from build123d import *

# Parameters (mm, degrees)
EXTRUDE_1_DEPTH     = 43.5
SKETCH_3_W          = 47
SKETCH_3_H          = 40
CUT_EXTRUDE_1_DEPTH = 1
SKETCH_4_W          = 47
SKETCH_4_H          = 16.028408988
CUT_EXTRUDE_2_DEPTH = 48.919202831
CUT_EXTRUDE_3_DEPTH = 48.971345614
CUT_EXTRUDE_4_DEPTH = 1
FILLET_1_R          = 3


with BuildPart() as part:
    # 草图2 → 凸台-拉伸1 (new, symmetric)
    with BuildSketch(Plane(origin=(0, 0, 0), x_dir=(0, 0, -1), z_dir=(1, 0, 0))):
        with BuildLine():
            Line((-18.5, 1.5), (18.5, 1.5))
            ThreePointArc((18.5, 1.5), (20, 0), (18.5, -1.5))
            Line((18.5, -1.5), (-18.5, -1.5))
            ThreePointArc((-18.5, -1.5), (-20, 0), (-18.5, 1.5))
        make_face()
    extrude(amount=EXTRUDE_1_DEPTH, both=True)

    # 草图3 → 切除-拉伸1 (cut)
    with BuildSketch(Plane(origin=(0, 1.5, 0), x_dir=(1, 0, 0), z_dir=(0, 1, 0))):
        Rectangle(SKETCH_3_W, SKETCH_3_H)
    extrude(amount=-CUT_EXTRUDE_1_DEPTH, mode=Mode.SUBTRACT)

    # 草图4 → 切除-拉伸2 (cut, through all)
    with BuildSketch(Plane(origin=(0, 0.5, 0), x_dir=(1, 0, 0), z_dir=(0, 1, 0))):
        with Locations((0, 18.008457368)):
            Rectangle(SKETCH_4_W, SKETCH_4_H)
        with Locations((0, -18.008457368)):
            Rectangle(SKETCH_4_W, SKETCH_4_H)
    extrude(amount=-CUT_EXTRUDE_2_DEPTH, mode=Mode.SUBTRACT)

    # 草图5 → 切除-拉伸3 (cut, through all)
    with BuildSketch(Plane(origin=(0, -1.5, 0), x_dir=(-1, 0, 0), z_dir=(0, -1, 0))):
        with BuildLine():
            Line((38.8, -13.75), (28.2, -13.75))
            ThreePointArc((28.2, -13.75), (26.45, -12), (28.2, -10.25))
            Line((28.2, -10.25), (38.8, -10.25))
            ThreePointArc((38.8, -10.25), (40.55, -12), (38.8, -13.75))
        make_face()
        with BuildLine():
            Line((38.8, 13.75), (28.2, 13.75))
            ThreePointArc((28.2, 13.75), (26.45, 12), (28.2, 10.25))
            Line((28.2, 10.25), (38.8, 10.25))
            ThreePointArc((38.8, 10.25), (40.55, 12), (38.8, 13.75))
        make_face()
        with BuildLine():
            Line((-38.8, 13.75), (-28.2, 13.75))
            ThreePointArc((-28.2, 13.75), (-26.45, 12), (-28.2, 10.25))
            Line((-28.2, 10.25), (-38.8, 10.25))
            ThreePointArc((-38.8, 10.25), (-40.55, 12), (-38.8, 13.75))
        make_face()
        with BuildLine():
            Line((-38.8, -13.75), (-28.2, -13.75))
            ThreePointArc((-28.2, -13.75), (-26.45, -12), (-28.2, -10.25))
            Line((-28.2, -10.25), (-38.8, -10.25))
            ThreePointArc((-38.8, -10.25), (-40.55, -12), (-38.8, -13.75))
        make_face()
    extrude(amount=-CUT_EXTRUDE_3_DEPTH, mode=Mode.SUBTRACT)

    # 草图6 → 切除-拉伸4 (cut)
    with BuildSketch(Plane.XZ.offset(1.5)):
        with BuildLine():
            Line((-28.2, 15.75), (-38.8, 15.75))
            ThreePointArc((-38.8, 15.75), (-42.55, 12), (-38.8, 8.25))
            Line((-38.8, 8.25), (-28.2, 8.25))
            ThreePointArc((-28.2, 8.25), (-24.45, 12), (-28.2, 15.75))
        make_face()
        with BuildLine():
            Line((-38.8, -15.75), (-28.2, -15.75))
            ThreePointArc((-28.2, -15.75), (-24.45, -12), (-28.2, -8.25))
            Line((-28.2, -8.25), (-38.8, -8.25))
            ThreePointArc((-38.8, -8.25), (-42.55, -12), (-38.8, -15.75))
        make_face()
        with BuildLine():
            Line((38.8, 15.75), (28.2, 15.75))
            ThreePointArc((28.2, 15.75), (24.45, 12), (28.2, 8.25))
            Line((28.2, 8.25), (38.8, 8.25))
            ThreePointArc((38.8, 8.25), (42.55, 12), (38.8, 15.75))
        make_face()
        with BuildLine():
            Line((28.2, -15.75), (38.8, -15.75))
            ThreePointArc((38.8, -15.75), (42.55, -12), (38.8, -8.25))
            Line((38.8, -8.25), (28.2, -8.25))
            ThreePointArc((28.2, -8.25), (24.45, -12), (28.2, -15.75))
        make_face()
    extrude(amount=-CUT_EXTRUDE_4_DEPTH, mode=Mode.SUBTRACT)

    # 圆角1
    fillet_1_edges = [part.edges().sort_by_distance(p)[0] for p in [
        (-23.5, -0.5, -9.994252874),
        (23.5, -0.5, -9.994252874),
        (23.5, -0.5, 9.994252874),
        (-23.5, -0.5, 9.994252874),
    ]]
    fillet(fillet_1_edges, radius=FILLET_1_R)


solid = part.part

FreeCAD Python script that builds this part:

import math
import FreeCAD as App
import Part
import Sketcher

V = App.Vector
Q = App.Units.Quantity


def edges_at(feature, points):
    """Names of the edges that pass closest to the given points."""
    edges = feature.Shape.Edges
    near = lambda p: min(range(len(edges)), key=lambda i: edges[i].distToShape(Part.Vertex(*p))[0])
    return sorted({f"Edge{near(p) + 1}" for p in points})


def add_polygon(sketch, points):
    """Adds a closed chain of lines whose ends are joined by coincident constraints."""
    first, n = sketch.GeometryCount, len(points)
    for a, b in zip(points, points[1:] + points[:1]):
        sketch.addGeometry(Part.LineSegment(App.Vector(*a, 0), App.Vector(*b, 0)), False)
    for i in range(n):
        sketch.addConstraint(Sketcher.Constraint("Coincident", first + i, 2, first + (i + 1) % n, 1))

doc = App.newDocument("Part")
body = doc.addObject("PartDesign::Body", "Body")

# Sketch on YZ plane
sketch1 = doc.addObject("Sketcher::SketchObject", "Sketch")
body.addObject(sketch1)
sketch1.AttachmentSupport = (doc.YZ_Plane, [""])
sketch1.MapMode = "FlatFace"
sketch1.addGeometry(Part.LineSegment(V(1.5, -18.5, 0), V(1.5, 18.5, 0)), False)
sketch1.addGeometry(Part.ArcOfCircle(Part.Circle(V(0, 18.5, 0), V(0, 0, 1), 1.5), math.radians(0), math.radians(180)), False)
sketch1.addGeometry(Part.LineSegment(V(-1.5, 18.5, 0), V(-1.5, -18.5, 0)), False)
sketch1.addGeometry(Part.ArcOfCircle(Part.Circle(V(0, -18.5, 0), V(0, 0, 1), 1.5), math.radians(180), math.radians(360)), False)
sketch1.addConstraint(Sketcher.Constraint("Tangent", 0, 2, 1, 1))
sketch1.addConstraint(Sketcher.Constraint("Tangent", 1, 2, 2, 1))
sketch1.addConstraint(Sketcher.Constraint("Tangent", 2, 2, 3, 1))
sketch1.addConstraint(Sketcher.Constraint("Tangent", 3, 2, 0, 1))
sketch1.addConstraint(Sketcher.Constraint("Vertical", 0))
sketch1.addConstraint(Sketcher.Constraint("Vertical", 2))
sketch1.addConstraint(Sketcher.Constraint("Symmetric", 1, 3, 3, 3, -1, 1))
sketch1.addConstraint(Sketcher.Constraint("Radius", 1, Q("1.5 mm")))
sketch1.addConstraint(Sketcher.Constraint("DistanceY", 0, 1, 0, 2, Q("37 mm")))
pad1 = doc.addObject("PartDesign::Pad", "Pad")
body.addObject(pad1)
pad1.Profile = sketch1
pad1.Length = 87
pad1.Midplane = True

# Sketch on XZ plane
sketch2 = doc.addObject("Sketcher::SketchObject", "Sketch001")
body.addObject(sketch2)
sketch2.AttachmentSupport = (doc.XZ_Plane, [""])
sketch2.MapMode = "FlatFace"
sketch2.AttachmentOffset = App.Placement(V(0, 0, -1.5), App.Rotation())
add_polygon(sketch2, [(-24, -20), (-24, 20), (24, 20), (24, -20)])  # lines 0-3
sketch2.addConstraint(Sketcher.Constraint("Vertical", 0))
sketch2.addConstraint(Sketcher.Constraint("Horizontal", 1))
sketch2.addConstraint(Sketcher.Constraint("Vertical", 2))
sketch2.addConstraint(Sketcher.Constraint("Horizontal", 3))
sketch2.addConstraint(Sketcher.Constraint("Symmetric", 0, 2, 2, 2, -1, 1))
sketch2.addConstraint(Sketcher.Constraint("DistanceX", 1, 1, 1, 2, Q("47 mm")))
sketch2.addConstraint(Sketcher.Constraint("DistanceY", 0, 1, 0, 2, Q("40 mm")))
pocket1 = doc.addObject("PartDesign::Pocket", "Pocket")
body.addObject(pocket1)
pocket1.Profile = sketch2
pocket1.Length = 1
pocket1.Reversed = True

# Sketch on XZ plane
sketch3 = doc.addObject("Sketcher::SketchObject", "Sketch002")
body.addObject(sketch3)
sketch3.AttachmentSupport = (doc.XZ_Plane, [""])
sketch3.MapMode = "FlatFace"
sketch3.AttachmentOffset = App.Placement(V(0, 0, -0.5), App.Rotation())
add_polygon(sketch3, [(-24, -26), (-24, -10), (24, -10), (24, -26)])  # lines 0-3
add_polygon(sketch3, [(-24, 10), (-24, 26), (24, 26), (24, 10)])  # lines 4-7
sketch3.addConstraint(Sketcher.Constraint("Vertical", 0))
sketch3.addConstraint(Sketcher.Constraint("Horizontal", 1))
sketch3.addConstraint(Sketcher.Constraint("Vertical", 2))
sketch3.addConstraint(Sketcher.Constraint("Horizontal", 3))
sketch3.addConstraint(Sketcher.Constraint("Vertical", 4))
sketch3.addConstraint(Sketcher.Constraint("Horizontal", 5))
sketch3.addConstraint(Sketcher.Constraint("Vertical", 6))
sketch3.addConstraint(Sketcher.Constraint("Horizontal", 7))
sketch3.addConstraint(Sketcher.Constraint("Symmetric", 2, 2, 4, 2, -1, 1))
sketch3.addConstraint(Sketcher.Constraint("Symmetric", 0, 2, 6, 2, -1, 1))
sketch3.addConstraint(Sketcher.Constraint("Vertical", 3, 2, 4, 2))
sketch3.addConstraint(Sketcher.Constraint("DistanceX", 1, 1, 1, 2, Q("47 mm")))
sketch3.addConstraint(Sketcher.Constraint("DistanceY", 0, 1, 0, 2, Q("16.028409 mm")))
sketch3.addConstraint(Sketcher.Constraint("DistanceY", 2, 2, -1, 1, Q("26.022662 mm")))
pocket2 = doc.addObject("PartDesign::Pocket", "Pocket001")
body.addObject(pocket2)
pocket2.Profile = sketch3
pocket2.Type = "ThroughAll"
pocket2.Reversed = True

# Sketch on XZ plane
sketch4 = doc.addObject("Sketcher::SketchObject", "Sketch003")
body.addObject(sketch4)
sketch4.AttachmentSupport = (doc.XZ_Plane, [""])
sketch4.MapMode = "FlatFace"
sketch4.AttachmentOffset = App.Placement(V(0, 0, 1.5), App.Rotation())
sketch4.addGeometry(Part.LineSegment(V(-28.2, 13.8, 0), V(-38.8, 13.8, 0)), False)
sketch4.addGeometry(Part.ArcOfCircle(Part.Circle(V(-38.8, 12, 0), V(0, 0, 1), 1.8), math.radians(90), math.radians(270)), False)
sketch4.addGeometry(Part.LineSegment(V(-38.8, 10.2, 0), V(-28.2, 10.2, 0)), False)
sketch4.addGeometry(Part.ArcOfCircle(Part.Circle(V(-28.2, 12, 0), V(0, 0, 1), 1.8), math.radians(-90), math.radians(90)), False)
sketch4.addGeometry(Part.LineSegment(V(-38.8, -13.8, 0), V(-28.2, -13.8, 0)), False)
sketch4.addGeometry(Part.ArcOfCircle(Part.Circle(V(-28.2, -12, 0), V(0, 0, 1), 1.8), math.radians(-90), math.radians(90)), False)
sketch4.addGeometry(Part.LineSegment(V(-28.2, -10.2, 0), V(-38.8, -10.2, 0)), False)
sketch4.addGeometry(Part.ArcOfCircle(Part.Circle(V(-38.8, -12, 0), V(0, 0, 1), 1.8), math.radians(90), math.radians(270)), False)
sketch4.addGeometry(Part.LineSegment(V(28.2, -13.8, 0), V(38.8, -13.8, 0)), False)
sketch4.addGeometry(Part.ArcOfCircle(Part.Circle(V(38.8, -12, 0), V(0, 0, 1), 1.8), math.radians(-90), math.radians(90)), False)
sketch4.addGeometry(Part.LineSegment(V(38.8, -10.2, 0), V(28.2, -10.2, 0)), False)
sketch4.addGeometry(Part.ArcOfCircle(Part.Circle(V(28.2, -12, 0), V(0, 0, 1), 1.8), math.radians(90), math.radians(270)), False)
sketch4.addGeometry(Part.LineSegment(V(38.8, 13.8, 0), V(28.2, 13.8, 0)), False)
sketch4.addGeometry(Part.ArcOfCircle(Part.Circle(V(28.2, 12, 0), V(0, 0, 1), 1.8), math.radians(90), math.radians(270)), False)
sketch4.addGeometry(Part.LineSegment(V(28.2, 10.2, 0), V(38.8, 10.2, 0)), False)
sketch4.addGeometry(Part.ArcOfCircle(Part.Circle(V(38.8, 12, 0), V(0, 0, 1), 1.8), math.radians(-90), math.radians(90)), False)
sketch4.addConstraint(Sketcher.Constraint("Tangent", 0, 2, 1, 1))
sketch4.addConstraint(Sketcher.Constraint("Tangent", 1, 2, 2, 1))
sketch4.addConstraint(Sketcher.Constraint("Tangent", 2, 2, 3, 1))
sketch4.addConstraint(Sketcher.Constraint("Tangent", 3, 2, 0, 1))
sketch4.addConstraint(Sketcher.Constraint("Tangent", 4, 2, 5, 1))
sketch4.addConstraint(Sketcher.Constraint("Tangent", 5, 2, 6, 1))
sketch4.addConstraint(Sketcher.Constraint("Tangent", 6, 2, 7, 1))
sketch4.addConstraint(Sketcher.Constraint("Tangent", 7, 2, 4, 1))
sketch4.addConstraint(Sketcher.Constraint("Tangent", 8, 2, 9, 1))
sketch4.addConstraint(Sketcher.Constraint("Tangent", 9, 2, 10, 1))
sketch4.addConstraint(Sketcher.Constraint("Tangent", 10, 2, 11, 1))
sketch4.addConstraint(Sketcher.Constraint("Tangent", 11, 2, 8, 1))
sketch4.addConstraint(Sketcher.Constraint("Tangent", 12, 2, 13, 1))
sketch4.addConstraint(Sketcher.Constraint("Tangent", 13, 2, 14, 1))
sketch4.addConstraint(Sketcher.Constraint("Tangent", 14, 2, 15, 1))
sketch4.addConstraint(Sketcher.Constraint("Tangent", 15, 2, 12, 1))
sketch4.addConstraint(Sketcher.Constraint("Horizontal", 0))
sketch4.addConstraint(Sketcher.Constraint("Horizontal", 2))
sketch4.addConstraint(Sketcher.Constraint("Horizontal", 4))
sketch4.addConstraint(Sketcher.Constraint("Horizontal", 6))
sketch4.addConstraint(Sketcher.Constraint("Horizontal", 8))
sketch4.addConstraint(Sketcher.Constraint("Horizontal", 10))
sketch4.addConstraint(Sketcher.Constraint("Horizontal", 12))
sketch4.addConstraint(Sketcher.Constraint("Horizontal", 14))
sketch4.addConstraint(Sketcher.Constraint("Equal", 3, 5))
sketch4.addConstraint(Sketcher.Constraint("Equal", 7, 9))
sketch4.addConstraint(Sketcher.Constraint("Equal", 11, 13))
sketch4.addConstraint(Sketcher.Constraint("Symmetric", 1, 3, 9, 3, -1, 1))
sketch4.addConstraint(Sketcher.Constraint("Symmetric", 5, 3, 13, 3, -1, 1))
sketch4.addConstraint(Sketcher.Constraint("Symmetric", 7, 3, 9, 3, -2))
sketch4.addConstraint(Sketcher.Constraint("Vertical", 3, 3, 5, 3))
sketch4.addConstraint(Sketcher.Constraint("Vertical", 11, 3, 13, 3))
sketch4.addConstraint(Sketcher.Constraint("Vertical", 9, 3, 15, 3))
sketch4.addConstraint(Sketcher.Constraint("Radius", 1, Q("1.75 mm")))
sketch4.addConstraint(Sketcher.Constraint("DistanceX", 0, 2, 0, 1, Q("10.6 mm")))
sketch4.addConstraint(Sketcher.Constraint("DistanceY", -1, 1, 1, 3, Q("12 mm")))
sketch4.addConstraint(Sketcher.Constraint("DistanceX", 5, 3, 9, 3, Q("67 mm")))
pocket3 = doc.addObject("PartDesign::Pocket", "Pocket002")
body.addObject(pocket3)
pocket3.Profile = sketch4
pocket3.Type = "ThroughAll"

# Sketch on XZ plane
sketch5 = doc.addObject("Sketcher::SketchObject", "Sketch004")
body.addObject(sketch5)
sketch5.AttachmentSupport = (doc.XZ_Plane, [""])
sketch5.MapMode = "FlatFace"
sketch5.AttachmentOffset = App.Placement(V(0, 0, 1.5), App.Rotation())
sketch5.addGeometry(Part.LineSegment(V(-28.2, 15.8, 0), V(-38.8, 15.8, 0)), False)
sketch5.addGeometry(Part.ArcOfCircle(Part.Circle(V(-38.8, 12, 0), V(0, 0, 1), 3.8), math.radians(90), math.radians(270)), False)
sketch5.addGeometry(Part.LineSegment(V(-38.8, 8.2, 0), V(-28.2, 8.2, 0)), False)
sketch5.addGeometry(Part.ArcOfCircle(Part.Circle(V(-28.2, 12, 0), V(0, 0, 1), 3.8), math.radians(-90), math.radians(90)), False)
sketch5.addGeometry(Part.LineSegment(V(-38.8, -15.8, 0), V(-28.2, -15.8, 0)), False)
sketch5.addGeometry(Part.ArcOfCircle(Part.Circle(V(-28.2, -12, 0), V(0, 0, 1), 3.8), math.radians(-90), math.radians(90)), False)
sketch5.addGeometry(Part.LineSegment(V(-28.2, -8.2, 0), V(-38.8, -8.2, 0)), False)
sketch5.addGeometry(Part.ArcOfCircle(Part.Circle(V(-38.8, -12, 0), V(0, 0, 1), 3.8), math.radians(90), math.radians(270)), False)
sketch5.addGeometry(Part.LineSegment(V(38.8, 15.8, 0), V(28.2, 15.8, 0)), False)
sketch5.addGeometry(Part.ArcOfCircle(Part.Circle(V(28.2, 12, 0), V(0, 0, 1), 3.8), math.radians(90), math.radians(270)), False)
sketch5.addGeometry(Part.LineSegment(V(28.2, 8.2, 0), V(38.8, 8.2, 0)), False)
sketch5.addGeometry(Part.ArcOfCircle(Part.Circle(V(38.8, 12, 0), V(0, 0, 1), 3.8), math.radians(-90), math.radians(90)), False)
sketch5.addGeometry(Part.LineSegment(V(28.2, -15.8, 0), V(38.8, -15.8, 0)), False)
sketch5.addGeometry(Part.ArcOfCircle(Part.Circle(V(38.8, -12, 0), V(0, 0, 1), 3.8), math.radians(-90), math.radians(90)), False)
sketch5.addGeometry(Part.LineSegment(V(38.8, -8.2, 0), V(28.2, -8.2, 0)), False)
sketch5.addGeometry(Part.ArcOfCircle(Part.Circle(V(28.2, -12, 0), V(0, 0, 1), 3.8), math.radians(90), math.radians(270)), False)
sketch5.addConstraint(Sketcher.Constraint("Tangent", 0, 2, 1, 1))
sketch5.addConstraint(Sketcher.Constraint("Tangent", 1, 2, 2, 1))
sketch5.addConstraint(Sketcher.Constraint("Tangent", 2, 2, 3, 1))
sketch5.addConstraint(Sketcher.Constraint("Tangent", 3, 2, 0, 1))
sketch5.addConstraint(Sketcher.Constraint("Tangent", 4, 2, 5, 1))
sketch5.addConstraint(Sketcher.Constraint("Tangent", 5, 2, 6, 1))
sketch5.addConstraint(Sketcher.Constraint("Tangent", 6, 2, 7, 1))
sketch5.addConstraint(Sketcher.Constraint("Tangent", 7, 2, 4, 1))
sketch5.addConstraint(Sketcher.Constraint("Tangent", 8, 2, 9, 1))
sketch5.addConstraint(Sketcher.Constraint("Tangent", 9, 2, 10, 1))
sketch5.addConstraint(Sketcher.Constraint("Tangent", 10, 2, 11, 1))
sketch5.addConstraint(Sketcher.Constraint("Tangent", 11, 2, 8, 1))
sketch5.addConstraint(Sketcher.Constraint("Tangent", 12, 2, 13, 1))
sketch5.addConstraint(Sketcher.Constraint("Tangent", 13, 2, 14, 1))
sketch5.addConstraint(Sketcher.Constraint("Tangent", 14, 2, 15, 1))
sketch5.addConstraint(Sketcher.Constraint("Tangent", 15, 2, 12, 1))
sketch5.addConstraint(Sketcher.Constraint("Horizontal", 0))
sketch5.addConstraint(Sketcher.Constraint("Horizontal", 2))
sketch5.addConstraint(Sketcher.Constraint("Horizontal", 4))
sketch5.addConstraint(Sketcher.Constraint("Horizontal", 6))
sketch5.addConstraint(Sketcher.Constraint("Horizontal", 8))
sketch5.addConstraint(Sketcher.Constraint("Horizontal", 10))
sketch5.addConstraint(Sketcher.Constraint("Horizontal", 12))
sketch5.addConstraint(Sketcher.Constraint("Horizontal", 14))
sketch5.addConstraint(Sketcher.Constraint("Equal", 3, 5))
sketch5.addConstraint(Sketcher.Constraint("Equal", 7, 9))
sketch5.addConstraint(Sketcher.Constraint("Equal", 11, 13))
sketch5.addConstraint(Sketcher.Constraint("Symmetric", 5, 3, 9, 3, -1, 1))
sketch5.addConstraint(Sketcher.Constraint("Symmetric", 1, 3, 13, 3, -1, 1))
sketch5.addConstraint(Sketcher.Constraint("Symmetric", 3, 3, 9, 3, -2))
sketch5.addConstraint(Sketcher.Constraint("Vertical", 1, 3, 7, 3))
sketch5.addConstraint(Sketcher.Constraint("Vertical", 11, 3, 13, 3))
sketch5.addConstraint(Sketcher.Constraint("Vertical", 9, 3, 15, 3))
sketch5.addConstraint(Sketcher.Constraint("Radius", 1, Q("3.75 mm")))
sketch5.addConstraint(Sketcher.Constraint("DistanceX", 0, 2, 0, 1, Q("10.6 mm")))
sketch5.addConstraint(Sketcher.Constraint("DistanceY", -1, 1, 1, 3, Q("12 mm")))
sketch5.addConstraint(Sketcher.Constraint("DistanceX", 1, 3, 9, 3, Q("67 mm")))
pocket4 = doc.addObject("PartDesign::Pocket", "Pocket003")
body.addObject(pocket4)
pocket4.Profile = sketch5
pocket4.Length = 1
doc.recompute()

fillet = doc.addObject("PartDesign::Fillet", "Fillet")
body.addObject(fillet)
fillet.Base = (pocket4, edges_at(pocket4, [
    (-23.5, -0.5, -9.994),
    (23.5, -0.5, -9.994),
    (23.5, -0.5, 9.994),
    (-23.5, -0.5, 9.994),
]))
fillet.Radius = 3

doc.recompute()
